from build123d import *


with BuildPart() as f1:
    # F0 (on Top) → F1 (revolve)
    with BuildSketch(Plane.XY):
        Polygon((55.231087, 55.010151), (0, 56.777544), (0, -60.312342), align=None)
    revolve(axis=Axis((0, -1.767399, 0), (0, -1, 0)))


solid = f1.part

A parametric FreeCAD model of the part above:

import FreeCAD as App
import Part
import Sketcher


def add_polygon(sketch, points):
    """Adds a closed chain of lines whose ends are joined by coincident constraints."""
    first, n = sketch.GeometryCount, len(points)
    for a, b in zip(points, points[1:] + points[:1]):
        sketch.addGeometry(Part.LineSegment(App.Vector(*a, 0), App.Vector(*b, 0)), False)
    for i in range(n):
        sketch.addConstraint(Sketcher.Constraint("Coincident", first + i, 2, first + (i + 1) % n, 1))

doc = App.newDocument("Part")
body = doc.addObject("PartDesign::Body", "Body")

# Sketch on XY plane
sketch1 = doc.addObject("Sketcher::SketchObject", "Sketch")
body.addObject(sketch1)
sketch1.AttachmentSupport = (doc.XY_Plane, [""])
sketch1.MapMode = "FlatFace"
add_polygon(sketch1, [(55, 55), (0, 57), (0, -60)])  # lines 0-2
sketch1.addConstraint(Sketcher.Constraint("Vertical", 1))
sketch1.addConstraint(Sketcher.Constraint("PointOnObject", 0, 2, -2))
sketch1.addConstraint(Sketcher.Constraint("Distance", 0, 55.259358))
sketch1.addConstraint(Sketcher.Constraint("DistanceY", 1, 2, 1, 1, 117.089886))
sketch1.addConstraint(Sketcher.Constraint("DistanceY", -1, 1, 2, 2, 55.010151))
sketch1.addConstraint(Sketcher.Constraint("Distance", 2, 127.866142))
revolution = doc.addObject("PartDesign::Revolution", "Revolution")
body.addObject(revolution)
revolution.Profile = sketch1
revolution.ReferenceAxis = (sketch1, ["V_Axis"])
revolution.Angle = 360

doc.recompute()
